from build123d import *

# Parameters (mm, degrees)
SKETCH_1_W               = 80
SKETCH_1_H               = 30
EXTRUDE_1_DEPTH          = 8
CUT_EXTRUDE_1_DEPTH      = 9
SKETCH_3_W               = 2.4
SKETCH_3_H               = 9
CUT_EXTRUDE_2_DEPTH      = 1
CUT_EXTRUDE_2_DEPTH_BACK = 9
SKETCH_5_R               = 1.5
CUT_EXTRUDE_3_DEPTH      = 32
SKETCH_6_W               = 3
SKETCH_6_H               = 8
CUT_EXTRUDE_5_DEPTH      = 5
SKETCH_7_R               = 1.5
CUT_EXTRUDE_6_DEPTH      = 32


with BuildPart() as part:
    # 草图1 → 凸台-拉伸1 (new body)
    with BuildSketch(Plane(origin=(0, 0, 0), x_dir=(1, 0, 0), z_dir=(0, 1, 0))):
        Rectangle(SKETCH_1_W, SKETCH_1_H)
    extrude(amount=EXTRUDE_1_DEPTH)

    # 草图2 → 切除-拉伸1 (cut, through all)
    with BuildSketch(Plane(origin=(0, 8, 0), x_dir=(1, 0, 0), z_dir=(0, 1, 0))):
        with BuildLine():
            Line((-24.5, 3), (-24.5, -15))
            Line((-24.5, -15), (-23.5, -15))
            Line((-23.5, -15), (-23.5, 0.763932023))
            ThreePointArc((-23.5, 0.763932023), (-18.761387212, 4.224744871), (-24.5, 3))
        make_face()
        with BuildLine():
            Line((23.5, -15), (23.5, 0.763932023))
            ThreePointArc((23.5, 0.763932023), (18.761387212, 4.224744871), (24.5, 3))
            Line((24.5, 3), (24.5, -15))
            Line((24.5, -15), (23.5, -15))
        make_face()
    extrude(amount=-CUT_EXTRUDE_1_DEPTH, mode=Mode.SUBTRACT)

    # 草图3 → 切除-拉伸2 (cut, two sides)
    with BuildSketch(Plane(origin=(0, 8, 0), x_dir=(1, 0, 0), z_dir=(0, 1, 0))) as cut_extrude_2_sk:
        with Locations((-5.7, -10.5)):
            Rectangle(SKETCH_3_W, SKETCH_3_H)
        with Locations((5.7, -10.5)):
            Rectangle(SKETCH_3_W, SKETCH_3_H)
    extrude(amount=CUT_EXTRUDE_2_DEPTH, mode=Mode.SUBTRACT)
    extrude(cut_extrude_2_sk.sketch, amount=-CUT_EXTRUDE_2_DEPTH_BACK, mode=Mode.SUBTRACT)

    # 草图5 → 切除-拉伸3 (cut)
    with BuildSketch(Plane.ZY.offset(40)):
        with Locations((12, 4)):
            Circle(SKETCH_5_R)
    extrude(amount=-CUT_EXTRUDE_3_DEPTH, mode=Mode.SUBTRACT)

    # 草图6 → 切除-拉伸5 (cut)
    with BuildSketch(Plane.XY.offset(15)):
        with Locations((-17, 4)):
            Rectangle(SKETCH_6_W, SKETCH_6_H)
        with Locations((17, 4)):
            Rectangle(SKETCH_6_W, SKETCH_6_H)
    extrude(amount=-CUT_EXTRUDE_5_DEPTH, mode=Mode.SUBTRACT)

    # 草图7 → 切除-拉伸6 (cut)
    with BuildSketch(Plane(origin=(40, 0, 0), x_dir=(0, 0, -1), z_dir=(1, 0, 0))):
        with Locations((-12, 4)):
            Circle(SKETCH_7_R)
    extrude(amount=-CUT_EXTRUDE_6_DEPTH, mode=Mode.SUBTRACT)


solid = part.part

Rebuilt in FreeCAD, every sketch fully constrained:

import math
import FreeCAD as App
import Part
import Sketcher
from FreeCAD import Vector


def add_polygon(sketch, points):
    """Adds a closed chain of lines whose ends are joined by coincident constraints."""
    first, n = sketch.GeometryCount, len(points)
    for a, b in zip(points, points[1:] + points[:1]):
        sketch.addGeometry(Part.LineSegment(App.Vector(*a, 0), App.Vector(*b, 0)), False)
    for i in range(n):
        sketch.addConstraint(Sketcher.Constraint("Coincident", first + i, 2, first + (i + 1) % n, 1))

doc = App.newDocument("Part")
body = doc.addObject("PartDesign::Body", "Body")

sketch1 = body.newObject("Sketcher::SketchObject", "Sketch")
sketch1.AttachmentSupport = (doc.getObject("XZ_Plane"), [""])
sketch1.MapMode = "FlatFace"
add_polygon(sketch1, [(-40, -15), (-40, 15), (40, 15), (40, -15)])
sketch1.addConstraint([
    Sketcher.Constraint("Vertical", 0),
    Sketcher.Constraint("Horizontal", 1),
    Sketcher.Constraint("Vertical", 2),
    Sketcher.Constraint("Horizontal", 3),
    Sketcher.Constraint("Symmetric", 0, 2, 2, 2, -1, 1),
    Sketcher.Constraint("DistanceX", 1, 1, 1, 2, 80.0),
    Sketcher.Constraint("DistanceY", 0, 1, 0, 2, 30.0),
])
pad1 = body.newObject("PartDesign::Pad", "Pad")
pad1.Profile = sketch1
pad1.Length = 8
pad1.Reversed = True

sketch2 = body.newObject("Sketcher::SketchObject", "Sketch001")
sketch2.AttachmentSupport = (doc.getObject("XZ_Plane"), [""])
sketch2.MapMode = "FlatFace"
sketch2.AttachmentOffset = App.Placement(Vector(0, 0, -8), App.Rotation())
sketch2.addGeometry([
    Part.LineSegment(Vector(-24.5, -3, 0), Vector(-24.5, 15, 0)),
    Part.LineSegment(Vector(-24.5, 15, 0), Vector(-23.5, 15, 0)),
    Part.LineSegment(Vector(-23.5, 15, 0), Vector(-23.5, -0.8, 0)),
    Part.ArcOfCircle(Part.Circle(Vector(-21.5, -3, 0), Vector(0, 0, 1), 3), math.radians(180), math.radians(492)),
    Part.LineSegment(Vector(23.5, -0.8, 0), Vector(23.5, 15, 0)),
    Part.LineSegment(Vector(23.5, 15, 0), Vector(24.5, 15, 0)),
    Part.LineSegment(Vector(24.5, 15, 0), Vector(24.5, -3, 0)),
    Part.ArcOfCircle(Part.Circle(Vector(21.5, -3, 0), Vector(0, 0, 1), 3), math.radians(48), math.radians(360)),
], False)
sketch2.addConstraint([
    Sketcher.Constraint("Coincident", 0, 2, 1, 1),
    Sketcher.Constraint("Coincident", 1, 2, 2, 1),
    Sketcher.Constraint("Coincident", 2, 2, 3, 2),
    Sketcher.Constraint("Tangent", 3, 1, 0, 1),
    Sketcher.Constraint("Coincident", 4, 2, 5, 1),
    Sketcher.Constraint("Coincident", 5, 2, 6, 1),
    Sketcher.Constraint("Tangent", 6, 2, 7, 2),
    Sketcher.Constraint("Coincident", 7, 1, 4, 1),
    Sketcher.Constraint("Vertical", 0),
    Sketcher.Constraint("Horizontal", 1),
    Sketcher.Constraint("Vertical", 2),
    Sketcher.Constraint("Vertical", 4),
    Sketcher.Constraint("Horizontal", 5),
    Sketcher.Constraint("Vertical", 6),
    Sketcher.Constraint("Equal", 3, 7),
    Sketcher.Constraint("Symmetric", 3, 3, 7, 3, -2),
    Sketcher.Constraint("Symmetric", 1, 2, 4, 2, -2),
    Sketcher.Constraint("Radius", 3, 3.0),
    Sketcher.Constraint("DistanceX", 1, 1, 1, 2, 1.0),
    Sketcher.Constraint("DistanceY", 0, 1, 0, 2, 18.0),
    Sketcher.Constraint("DistanceY", 3, 3, -1, 1, 3.0),
    Sketcher.Constraint("DistanceX", 3, 3, 7, 3, 43.0),
])
pocket1 = body.newObject("PartDesign::Pocket", "Pocket")
pocket1.Profile = sketch2
pocket1.Type = "ThroughAll"
pocket1.Reversed = True

sketch3 = body.newObject("Sketcher::SketchObject", "Sketch002")
sketch3.AttachmentSupport = (doc.getObject("XZ_Plane"), [""])
sketch3.MapMode = "FlatFace"
sketch3.AttachmentOffset = App.Placement(Vector(0, 0, -8), App.Rotation())
add_polygon(sketch3, [(-6.9, 6), (-6.9, 15), (-4.5, 15), (-4.5, 6)])
add_polygon(sketch3, [(4.5, 6), (4.5, 15), (6.9, 15), (6.9, 6)])
sketch3.addConstraint([
    Sketcher.Constraint("Vertical", 0),
    Sketcher.Constraint("Horizontal", 1),
    Sketcher.Constraint("Vertical", 2),
    Sketcher.Constraint("Horizontal", 3),
    Sketcher.Constraint("Vertical", 4),
    Sketcher.Constraint("Horizontal", 5),
    Sketcher.Constraint("Vertical", 6),
    Sketcher.Constraint("Horizontal", 7),
    Sketcher.Constraint("Symmetric", 1, 2, 4, 2, -2),
    Sketcher.Constraint("Symmetric", 3, 2, 6, 2, -2),
    Sketcher.Constraint("DistanceY", 0, 1, 0, 2, 9.0),
    Sketcher.Constraint("DistanceX", 1, 1, 1, 2, 2.4),
    Sketcher.Constraint("DistanceY", -1, 1, 0, 2, 15.0),
    Sketcher.Constraint("DistanceX", 1, 2, 4, 2, 9.0),
])
pocket2 = body.newObject("PartDesign::Pocket", "Pocket001")
pocket2.Profile = sketch3
pocket2.Type = "ThroughAll"
pocket2.Midplane = True

sketch4 = body.newObject("Sketcher::SketchObject", "Sketch003")
sketch4.AttachmentSupport = (doc.getObject("YZ_Plane"), [""])
sketch4.MapMode = "FlatFace"
sketch4.AttachmentOffset = App.Placement(Vector(0, 0, -40), App.Rotation())
sketch4.addGeometry(Part.Circle(Vector(4, 12, 0), Vector(0, 0, 1), 1.5), False)
sketch4.addConstraint([
    Sketcher.Constraint("Diameter", 0, 3.0),
    Sketcher.Constraint("DistanceX", -1, 1, 0, 3, 4.0),
    Sketcher.Constraint("DistanceY", -1, 1, 0, 3, 12.0),
])
pocket3 = body.newObject("PartDesign::Pocket", "Pocket002")
pocket3.Profile = sketch4
pocket3.Length = 32
pocket3.Reversed = True

sketch5 = body.newObject("Sketcher::SketchObject", "Sketch004")
sketch5.AttachmentSupport = (doc.getObject("XY_Plane"), [""])
sketch5.MapMode = "FlatFace"
sketch5.AttachmentOffset = App.Placement(Vector(0, 0, 15), App.Rotation())
add_polygon(sketch5, [(-18.5, 8), (-18.5, 0), (-15.5, 0), (-15.5, 8)])
add_polygon(sketch5, [(15.5, 8), (15.5, 0), (18.5, 0), (18.5, 8)])
sketch5.addConstraint([
    Sketcher.Constraint("Vertical", 0),
    Sketcher.Constraint("Horizontal", 1),
    Sketcher.Constraint("Vertical", 2),
    Sketcher.Constraint("Horizontal", 3),
    Sketcher.Constraint("Vertical", 4),
    Sketcher.Constraint("Horizontal", 5),
    Sketcher.Constraint("Vertical", 6),
    Sketcher.Constraint("Horizontal", 7),
    Sketcher.Constraint("Symmetric", 1, 2, 4, 2, -1, 1),
    Sketcher.Constraint("Symmetric", 0, 2, 5, 2, -2),
    Sketcher.Constraint("Horizontal", 3, 2, 6, 2),
    Sketcher.Constraint("DistanceX", 1, 1, 1, 2, 3.0),
    Sketcher.Constraint("DistanceY", 0, 2, 0, 1, 8.0),
    Sketcher.Constraint("DistanceX", 1, 2, 4, 2, 31.0),
])
pocket4 = body.newObject("PartDesign::Pocket", "Pocket003")
pocket4.Profile = sketch5
pocket4.Length = 5

sketch6 = body.newObject("Sketcher::SketchObject", "Sketch005")
sketch6.AttachmentSupport = (doc.getObject("YZ_Plane"), [""])
sketch6.MapMode = "FlatFace"
sketch6.AttachmentOffset = App.Placement(Vector(0, 0, 40), App.Rotation())
sketch6.addGeometry(Part.Circle(Vector(4, 12, 0), Vector(0, 0, 1), 1.5), False)
sketch6.addConstraint([
    Sketcher.Constraint("Diameter", 0, 3.0),
    Sketcher.Constraint("DistanceX", -1, 1, 0, 3, 4.0),
    Sketcher.Constraint("DistanceY", -1, 1, 0, 3, 12.0),
])
pocket5 = body.newObject("PartDesign::Pocket", "Pocket004")
pocket5.Profile = sketch6
pocket5.Length = 32

doc.recompute()
